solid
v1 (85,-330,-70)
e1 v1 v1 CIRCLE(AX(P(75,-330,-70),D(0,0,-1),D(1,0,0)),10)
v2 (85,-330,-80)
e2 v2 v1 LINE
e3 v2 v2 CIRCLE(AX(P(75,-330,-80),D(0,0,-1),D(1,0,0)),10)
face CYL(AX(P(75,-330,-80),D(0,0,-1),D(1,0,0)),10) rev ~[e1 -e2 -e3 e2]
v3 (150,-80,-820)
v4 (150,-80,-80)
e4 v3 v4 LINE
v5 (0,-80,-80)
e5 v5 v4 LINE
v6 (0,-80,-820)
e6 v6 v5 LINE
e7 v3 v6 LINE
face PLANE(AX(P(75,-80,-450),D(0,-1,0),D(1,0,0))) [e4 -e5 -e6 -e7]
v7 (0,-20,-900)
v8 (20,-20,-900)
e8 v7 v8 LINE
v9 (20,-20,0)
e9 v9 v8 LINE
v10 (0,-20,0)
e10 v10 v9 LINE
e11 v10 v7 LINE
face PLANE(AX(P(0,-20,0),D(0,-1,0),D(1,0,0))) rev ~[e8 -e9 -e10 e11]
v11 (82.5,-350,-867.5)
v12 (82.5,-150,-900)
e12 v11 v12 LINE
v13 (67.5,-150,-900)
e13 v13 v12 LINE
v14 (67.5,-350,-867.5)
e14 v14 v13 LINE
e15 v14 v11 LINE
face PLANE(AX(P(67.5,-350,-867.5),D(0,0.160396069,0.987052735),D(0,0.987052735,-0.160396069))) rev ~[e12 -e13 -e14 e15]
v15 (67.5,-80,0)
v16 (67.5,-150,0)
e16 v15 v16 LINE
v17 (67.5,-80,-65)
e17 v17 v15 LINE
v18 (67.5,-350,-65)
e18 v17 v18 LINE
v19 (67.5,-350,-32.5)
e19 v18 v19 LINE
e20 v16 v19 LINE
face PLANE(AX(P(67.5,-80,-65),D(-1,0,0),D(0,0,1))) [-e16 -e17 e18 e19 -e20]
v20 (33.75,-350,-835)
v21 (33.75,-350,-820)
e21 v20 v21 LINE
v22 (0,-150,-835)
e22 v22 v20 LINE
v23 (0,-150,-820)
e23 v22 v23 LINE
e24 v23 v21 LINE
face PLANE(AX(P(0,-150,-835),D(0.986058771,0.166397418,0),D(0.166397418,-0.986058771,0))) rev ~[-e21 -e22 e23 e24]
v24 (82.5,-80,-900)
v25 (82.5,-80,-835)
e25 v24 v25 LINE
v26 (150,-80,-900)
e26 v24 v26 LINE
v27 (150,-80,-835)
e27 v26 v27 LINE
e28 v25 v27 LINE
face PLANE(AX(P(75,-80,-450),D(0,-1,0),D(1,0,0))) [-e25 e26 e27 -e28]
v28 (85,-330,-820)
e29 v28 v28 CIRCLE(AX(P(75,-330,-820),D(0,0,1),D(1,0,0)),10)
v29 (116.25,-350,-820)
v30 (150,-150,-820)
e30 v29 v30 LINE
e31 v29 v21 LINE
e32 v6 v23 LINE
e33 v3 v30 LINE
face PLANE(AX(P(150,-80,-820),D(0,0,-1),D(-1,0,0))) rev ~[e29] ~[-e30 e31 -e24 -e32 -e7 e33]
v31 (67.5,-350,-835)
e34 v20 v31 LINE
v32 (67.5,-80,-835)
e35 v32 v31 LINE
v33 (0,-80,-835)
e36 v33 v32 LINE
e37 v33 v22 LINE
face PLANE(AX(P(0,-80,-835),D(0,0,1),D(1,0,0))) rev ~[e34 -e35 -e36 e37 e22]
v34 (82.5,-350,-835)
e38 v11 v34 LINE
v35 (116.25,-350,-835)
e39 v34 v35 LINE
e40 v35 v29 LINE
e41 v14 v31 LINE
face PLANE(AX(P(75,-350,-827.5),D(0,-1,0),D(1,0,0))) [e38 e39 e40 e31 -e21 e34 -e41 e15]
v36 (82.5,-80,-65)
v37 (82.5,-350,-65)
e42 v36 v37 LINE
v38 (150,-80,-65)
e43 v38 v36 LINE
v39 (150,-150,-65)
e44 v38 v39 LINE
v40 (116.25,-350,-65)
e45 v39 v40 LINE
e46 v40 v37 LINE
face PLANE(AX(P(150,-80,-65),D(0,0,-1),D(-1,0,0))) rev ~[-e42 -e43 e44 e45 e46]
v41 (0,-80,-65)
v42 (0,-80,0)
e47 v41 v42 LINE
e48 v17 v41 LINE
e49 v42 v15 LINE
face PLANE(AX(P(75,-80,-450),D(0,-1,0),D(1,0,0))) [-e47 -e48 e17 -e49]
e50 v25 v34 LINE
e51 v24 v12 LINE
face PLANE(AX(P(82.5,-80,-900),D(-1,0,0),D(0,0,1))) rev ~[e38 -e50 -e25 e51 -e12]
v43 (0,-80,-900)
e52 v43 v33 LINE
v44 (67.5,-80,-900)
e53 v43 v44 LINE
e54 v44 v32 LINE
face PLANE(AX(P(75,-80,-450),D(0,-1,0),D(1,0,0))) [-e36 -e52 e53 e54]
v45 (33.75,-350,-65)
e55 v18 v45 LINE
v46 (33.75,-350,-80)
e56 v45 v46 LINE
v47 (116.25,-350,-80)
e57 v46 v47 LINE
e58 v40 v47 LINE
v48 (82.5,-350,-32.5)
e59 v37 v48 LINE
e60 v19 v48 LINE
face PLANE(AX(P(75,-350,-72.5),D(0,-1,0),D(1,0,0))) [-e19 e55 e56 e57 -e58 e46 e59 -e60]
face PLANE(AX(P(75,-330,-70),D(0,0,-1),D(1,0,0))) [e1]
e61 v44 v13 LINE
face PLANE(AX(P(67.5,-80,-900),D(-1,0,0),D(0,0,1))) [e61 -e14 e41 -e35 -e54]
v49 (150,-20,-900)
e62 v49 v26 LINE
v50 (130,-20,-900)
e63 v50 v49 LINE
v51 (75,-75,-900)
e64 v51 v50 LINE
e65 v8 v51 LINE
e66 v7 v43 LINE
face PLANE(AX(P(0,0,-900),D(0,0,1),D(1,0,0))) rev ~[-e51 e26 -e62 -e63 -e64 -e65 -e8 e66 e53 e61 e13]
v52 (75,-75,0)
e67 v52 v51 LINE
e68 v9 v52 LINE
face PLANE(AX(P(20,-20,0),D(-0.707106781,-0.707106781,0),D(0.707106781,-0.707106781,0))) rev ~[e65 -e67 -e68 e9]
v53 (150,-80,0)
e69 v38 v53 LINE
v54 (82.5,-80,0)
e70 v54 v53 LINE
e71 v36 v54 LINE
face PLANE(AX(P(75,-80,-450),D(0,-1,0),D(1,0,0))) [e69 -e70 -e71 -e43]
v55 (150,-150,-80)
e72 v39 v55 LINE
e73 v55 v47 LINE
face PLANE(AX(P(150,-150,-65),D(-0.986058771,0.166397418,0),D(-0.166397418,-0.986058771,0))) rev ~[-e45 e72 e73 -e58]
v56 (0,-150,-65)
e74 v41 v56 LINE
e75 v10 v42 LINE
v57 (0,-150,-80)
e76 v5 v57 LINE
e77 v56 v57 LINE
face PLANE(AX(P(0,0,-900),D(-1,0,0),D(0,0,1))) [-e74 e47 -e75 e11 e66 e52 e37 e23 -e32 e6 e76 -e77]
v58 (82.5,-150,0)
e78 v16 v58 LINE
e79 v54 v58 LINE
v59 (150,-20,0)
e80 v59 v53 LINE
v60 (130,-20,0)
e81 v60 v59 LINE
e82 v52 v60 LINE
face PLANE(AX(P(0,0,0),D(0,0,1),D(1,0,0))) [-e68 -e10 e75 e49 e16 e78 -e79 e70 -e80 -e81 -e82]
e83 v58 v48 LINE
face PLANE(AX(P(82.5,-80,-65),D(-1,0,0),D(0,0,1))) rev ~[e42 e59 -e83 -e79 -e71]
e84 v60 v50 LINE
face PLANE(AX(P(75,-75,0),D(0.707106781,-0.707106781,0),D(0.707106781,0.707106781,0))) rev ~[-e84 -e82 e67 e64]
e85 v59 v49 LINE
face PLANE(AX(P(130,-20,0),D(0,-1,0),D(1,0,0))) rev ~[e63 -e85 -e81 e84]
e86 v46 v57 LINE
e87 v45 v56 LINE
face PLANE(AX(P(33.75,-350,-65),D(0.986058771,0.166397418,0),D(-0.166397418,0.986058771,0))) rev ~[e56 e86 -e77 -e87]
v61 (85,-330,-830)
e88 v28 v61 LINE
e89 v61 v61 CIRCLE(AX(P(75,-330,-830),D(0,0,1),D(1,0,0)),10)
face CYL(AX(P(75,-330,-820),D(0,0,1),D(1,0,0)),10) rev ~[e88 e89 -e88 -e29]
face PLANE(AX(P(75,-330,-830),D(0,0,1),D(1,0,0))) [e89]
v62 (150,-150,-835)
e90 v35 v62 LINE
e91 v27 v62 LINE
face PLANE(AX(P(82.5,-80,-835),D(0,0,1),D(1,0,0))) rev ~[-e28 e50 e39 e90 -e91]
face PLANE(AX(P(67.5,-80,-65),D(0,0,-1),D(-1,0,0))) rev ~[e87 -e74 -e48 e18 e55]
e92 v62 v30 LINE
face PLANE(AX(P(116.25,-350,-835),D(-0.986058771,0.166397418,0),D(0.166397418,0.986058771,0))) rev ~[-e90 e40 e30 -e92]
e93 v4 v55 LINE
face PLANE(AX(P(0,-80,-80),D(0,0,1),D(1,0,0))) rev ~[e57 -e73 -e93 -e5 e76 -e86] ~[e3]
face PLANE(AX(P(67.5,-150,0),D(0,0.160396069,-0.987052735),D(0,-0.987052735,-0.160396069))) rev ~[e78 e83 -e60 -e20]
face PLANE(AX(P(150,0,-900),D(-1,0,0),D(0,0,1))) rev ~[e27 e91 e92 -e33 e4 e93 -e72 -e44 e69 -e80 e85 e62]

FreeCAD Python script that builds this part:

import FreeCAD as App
import Part
import Sketcher

V = App.Vector
Q = App.Units.Quantity

doc = App.newDocument("Part")
body = doc.addObject("PartDesign::Body", "Body")

sketch1 = body.newObject("Sketcher::SketchObject", "Sketch")
sketch1.AttachmentSupport = (doc.getObject("XZ_Plane"), [""])
sketch1.MapMode = "FlatFace"
sketch1.addGeometry(Part.LineSegment(V(0, 0, 0), V(0, -900, 0)), False)
sketch1.addGeometry(Part.LineSegment(V(0, -900, 0), V(150, -900, 0)), False)
sketch1.addGeometry(Part.LineSegment(V(150, -900, 0), V(150, 0, 0)), False)
sketch1.addGeometry(Part.LineSegment(V(150, 0, 0), V(0, 0, 0)), False)
sketch1.addConstraint(Sketcher.Constraint("Coincident", 0, 2, 1, 1))
sketch1.addConstraint(Sketcher.Constraint("Coincident", 1, 2, 2, 1))
sketch1.addConstraint(Sketcher.Constraint("Coincident", 2, 2, 3, 1))
sketch1.addConstraint(Sketcher.Constraint("Coincident", 3, 2, 0, 1))
sketch1.addConstraint(Sketcher.Constraint("Vertical", 0))
sketch1.addConstraint(Sketcher.Constraint("Horizontal", 1))
sketch1.addConstraint(Sketcher.Constraint("Vertical", 2))
sketch1.addConstraint(Sketcher.Constraint("Horizontal", 3))
sketch1.addConstraint(Sketcher.Constraint("Coincident", 3, 2, -1, 1))
sketch1.addConstraint(Sketcher.Constraint("DistanceX", 1, 1, 1, 2, Q("150 mm")))
sketch1.addConstraint(Sketcher.Constraint("DistanceY", 0, 2, 0, 1, Q("900 mm")))
pad1 = body.newObject("PartDesign::Pad", "Pad")
pad1.Profile = sketch1
pad1.Length = 80

sketch2 = body.newObject("Sketcher::SketchObject", "Sketch001")
sketch2.AttachmentSupport = (doc.getObject("XZ_Plane"), [""])
sketch2.MapMode = "FlatFace"
sketch2.AttachmentOffset = App.Placement(V(0, 0, 80), App.Rotation())
sketch2.addGeometry(Part.LineSegment(V(0, -65, 0), V(0, -80, 0)), False)
sketch2.addGeometry(Part.LineSegment(V(0, -80, 0), V(150, -80, 0)), False)
sketch2.addGeometry(Part.LineSegment(V(150, -80, 0), V(150, -65, 0)), False)
sketch2.addGeometry(Part.LineSegment(V(150, -65, 0), V(82, -65, 0)), False)
sketch2.addGeometry(Part.LineSegment(V(82, -65, 0), V(82, 0, 0)), False)
sketch2.addGeometry(Part.LineSegment(V(82, 0, 0), V(68, 0, 0)), False)
sketch2.addGeometry(Part.LineSegment(V(68, 0, 0), V(68, -65, 0)), False)
sketch2.addGeometry(Part.LineSegment(V(68, -65, 0), V(0, -65, 0)), False)
sketch2.addGeometry(Part.LineSegment(V(150, -820, 0), V(0, -820, 0)), False)
sketch2.addGeometry(Part.LineSegment(V(0, -820, 0), V(0, -835, 0)), False)
sketch2.addGeometry(Part.LineSegment(V(0, -835, 0), V(68, -835, 0)), False)
sketch2.addGeometry(Part.LineSegment(V(68, -835, 0), V(68, -900, 0)), False)
sketch2.addGeometry(Part.LineSegment(V(68, -900, 0), V(82, -900, 0)), False)
sketch2.addGeometry(Part.LineSegment(V(82, -900, 0), V(82, -835, 0)), False)
sketch2.addGeometry(Part.LineSegment(V(82, -835, 0), V(150, -835, 0)), False)
sketch2.addGeometry(Part.LineSegment(V(150, -835, 0), V(150, -820, 0)), False)
sketch2.addConstraint(Sketcher.Constraint("Coincident", 0, 2, 1, 1))
sketch2.addConstraint(Sketcher.Constraint("Coincident", 1, 2, 2, 1))
sketch2.addConstraint(Sketcher.Constraint("Coincident", 2, 2, 3, 1))
sketch2.addConstraint(Sketcher.Constraint("Coincident", 3, 2, 4, 1))
sketch2.addConstraint(Sketcher.Constraint("Coincident", 4, 2, 5, 1))
sketch2.addConstraint(Sketcher.Constraint("Coincident", 5, 2, 6, 1))
sketch2.addConstraint(Sketcher.Constraint("Coincident", 6, 2, 7, 1))
sketch2.addConstraint(Sketcher.Constraint("Coincident", 7, 2, 0, 1))
sketch2.addConstraint(Sketcher.Constraint("Coincident", 8, 2, 9, 1))
sketch2.addConstraint(Sketcher.Constraint("Coincident", 9, 2, 10, 1))
sketch2.addConstraint(Sketcher.Constraint("Coincident", 10, 2, 11, 1))
sketch2.addConstraint(Sketcher.Constraint("Coincident", 11, 2, 12, 1))
sketch2.addConstraint(Sketcher.Constraint("Coincident", 12, 2, 13, 1))
sketch2.addConstraint(Sketcher.Constraint("Coincident", 13, 2, 14, 1))
sketch2.addConstraint(Sketcher.Constraint("Coincident", 14, 2, 15, 1))
sketch2.addConstraint(Sketcher.Constraint("Coincident", 15, 2, 8, 1))
sketch2.addConstraint(Sketcher.Constraint("Vertical", 0))
sketch2.addConstraint(Sketcher.Constraint("Horizontal", 1))
sketch2.addConstraint(Sketcher.Constraint("Vertical", 2))
sketch2.addConstraint(Sketcher.Constraint("Horizontal", 3))
sketch2.addConstraint(Sketcher.Constraint("Vertical", 4))
sketch2.addConstraint(Sketcher.Constraint("Horizontal", 5))
sketch2.addConstraint(Sketcher.Constraint("Vertical", 6))
sketch2.addConstraint(Sketcher.Constraint("Horizontal", 7))
sketch2.addConstraint(Sketcher.Constraint("Horizontal", 8))
sketch2.addConstraint(Sketcher.Constraint("Vertical", 9))
sketch2.addConstraint(Sketcher.Constraint("Horizontal", 10))
sketch2.addConstraint(Sketcher.Constraint("Vertical", 11))
sketch2.addConstraint(Sketcher.Constraint("Horizontal", 12))
sketch2.addConstraint(Sketcher.Constraint("Vertical", 13))
sketch2.addConstraint(Sketcher.Constraint("Horizontal", 14))
sketch2.addConstraint(Sketcher.Constraint("Vertical", 15))
sketch2.addConstraint(Sketcher.Constraint("PointOnObject", 0, 2, -2))
sketch2.addConstraint(Sketcher.Constraint("PointOnObject", 4, 2, -1))
sketch2.addConstraint(Sketcher.Constraint("PointOnObject", 8, 2, -2))
sketch2.addConstraint(Sketcher.Constraint("Horizontal", 3, 2, 6, 2))
sketch2.addConstraint(Sketcher.Constraint("Horizontal", 10, 2, 13, 2))
sketch2.addConstraint(Sketcher.Constraint("Vertical", 6, 2, 10, 2))
sketch2.addConstraint(Sketcher.Constraint("Vertical", 4, 2, 12, 2))
sketch2.addConstraint(Sketcher.Constraint("Vertical", 2, 2, 14, 2))
sketch2.addConstraint(Sketcher.Constraint("Equal", 3, 7))
sketch2.addConstraint(Sketcher.Constraint("Equal", 12, 0))
sketch2.addConstraint(Sketcher.Constraint("Equal", 2, 9))
sketch2.addConstraint(Sketcher.Constraint("Equal", 6, 11))
sketch2.addConstraint(Sketcher.Constraint("DistanceX", 1, 1, 1, 2, Q("150 mm")))
sketch2.addConstraint(Sketcher.Constraint("DistanceX", 5, 2, 5, 1, Q("15 mm")))
sketch2.addConstraint(Sketcher.Constraint("DistanceY", 4, 1, 4, 2, Q("65 mm")))
sketch2.addConstraint(Sketcher.Constraint("DistanceY", 8, 2, -1, 1, Q("820 mm")))
pad2 = body.newObject("PartDesign::Pad", "Pad001")
pad2.Profile = sketch2
pad2.Length = 270

sketch3 = body.newObject("Sketcher::SketchObject", "Sketch002")
sketch3.AttachmentSupport = (doc.getObject("YZ_Plane"), [""])
sketch3.MapMode = "FlatFace"
sketch3.AttachmentOffset = App.Placement(V(0, 0, 67.5), App.Rotation())
sketch3.addGeometry(Part.LineSegment(V(-350, 0, 0), V(-150, 0, 0)), False)
sketch3.addGeometry(Part.LineSegment(V(-150, 0, 0), V(-350, -32, 0)), False)
sketch3.addGeometry(Part.LineSegment(V(-350, -32, 0), V(-350, 0, 0)), False)
sketch3.addConstraint(Sketcher.Constraint("Coincident", 0, 2, 1, 1))
sketch3.addConstraint(Sketcher.Constraint("Coincident", 1, 2, 2, 1))
sketch3.addConstraint(Sketcher.Constraint("Coincident", 2, 2, 0, 1))
sketch3.addConstraint(Sketcher.Constraint("Horizontal", 0))
sketch3.addConstraint(Sketcher.Constraint("Vertical", 2))
sketch3.addConstraint(Sketcher.Constraint("PointOnObject", 0, 2, -1))
sketch3.addConstraint(Sketcher.Constraint("DistanceX", 0, 1, 0, 2, Q("200 mm")))
sketch3.addConstraint(Sketcher.Constraint("DistanceY", 2, 1, 2, 2, Q("32.5 mm")))
sketch3.addConstraint(Sketcher.Constraint("DistanceX", 0, 2, -1, 1, Q("150 mm")))
pocket1 = body.newObject("PartDesign::Pocket", "Pocket")
pocket1.Profile = sketch3
pocket1.Length = 25
pocket1.Reversed = True

sketch4 = body.newObject("Sketcher::SketchObject", "Sketch003")
sketch4.AttachmentSupport = (doc.getObject("XY_Plane"), [""])
sketch4.MapMode = "FlatFace"
sketch4.AttachmentOffset = App.Placement(V(0, 0, -65), App.Rotation())
sketch4.addGeometry(Part.LineSegment(V(150, -150, 0), V(116, -350, 0)), False)
sketch4.addGeometry(Part.LineSegment(V(116, -350, 0), V(150, -350, 0)), False)
sketch4.addGeometry(Part.LineSegment(V(150, -350, 0), V(150, -150, 0)), False)
sketch4.addConstraint(Sketcher.Constraint("Coincident", 0, 2, 1, 1))
sketch4.addConstraint(Sketcher.Constraint("Coincident", 1, 2, 2, 1))
sketch4.addConstraint(Sketcher.Constraint("Coincident", 2, 2, 0, 1))
sketch4.addConstraint(Sketcher.Constraint("Horizontal", 1))
sketch4.addConstraint(Sketcher.Constraint("Vertical", 2))
sketch4.addConstraint(Sketcher.Constraint("DistanceY", 2, 1, 2, 2, Q("200 mm")))
sketch4.addConstraint(Sketcher.Constraint("DistanceY", 0, 2, -1, 1, Q("350 mm")))
sketch4.addConstraint(Sketcher.Constraint("DistanceX", -1, 1, 1, 2, Q("150 mm")))
sketch4.addConstraint(Sketcher.Constraint("DistanceX", 1, 1, 1, 2, Q("33.75 mm")))
pocket2 = body.newObject("PartDesign::Pocket", "Pocket001")
pocket2.Profile = sketch4
pocket2.Length = 25

sketch5 = body.newObject("Sketcher::SketchObject", "Sketch004")
sketch5.AttachmentSupport = (doc.getObject("XY_Plane"), [""])
sketch5.MapMode = "FlatFace"
sketch5.AttachmentOffset = App.Placement(V(0, 0, -65), App.Rotation())
sketch5.addGeometry(Part.LineSegment(V(0, -350, 0), V(34, -350, 0)), False)
sketch5.addGeometry(Part.LineSegment(V(34, -350, 0), V(0, -150, 0)), False)
sketch5.addGeometry(Part.LineSegment(V(0, -150, 0), V(0, -350, 0)), False)
sketch5.addConstraint(Sketcher.Constraint("Coincident", 0, 2, 1, 1))
sketch5.addConstraint(Sketcher.Constraint("Coincident", 1, 2, 2, 1))
sketch5.addConstraint(Sketcher.Constraint("Coincident", 2, 2, 0, 1))
sketch5.addConstraint(Sketcher.Constraint("Horizontal", 0))
sketch5.addConstraint(Sketcher.Constraint("Vertical", 2))
sketch5.addConstraint(Sketcher.Constraint("PointOnObject", 1, 2, -2))
sketch5.addConstraint(Sketcher.Constraint("DistanceY", 2, 2, 2, 1, Q("200 mm")))
sketch5.addConstraint(Sketcher.Constraint("DistanceY", 0, 2, -1, 1, Q("350 mm")))
sketch5.addConstraint(Sketcher.Constraint("DistanceX", 0, 1, 0, 2, Q("33.75 mm")))
pocket3 = body.newObject("PartDesign::Pocket", "Pocket002")
pocket3.Profile = sketch5
pocket3.Length = 25

sketch6 = body.newObject("Sketcher::SketchObject", "Sketch005")
sketch6.AttachmentSupport = (doc.getObject("XY_Plane"), [""])
sketch6.MapMode = "FlatFace"
sketch6.AttachmentOffset = App.Placement(V(0, 0, -835), App.Rotation())
sketch6.addGeometry(Part.LineSegment(V(150, -350, 0), V(116, -350, 0)), False)
sketch6.addGeometry(Part.LineSegment(V(116, -350, 0), V(150, -150, 0)), False)
sketch6.addGeometry(Part.LineSegment(V(150, -150, 0), V(150, -350, 0)), False)
sketch6.addConstraint(Sketcher.Constraint("Coincident", 0, 2, 1, 1))
sketch6.addConstraint(Sketcher.Constraint("Coincident", 1, 2, 2, 1))
sketch6.addConstraint(Sketcher.Constraint("Coincident", 2, 2, 0, 1))
sketch6.addConstraint(Sketcher.Constraint("Horizontal", 0))
sketch6.addConstraint(Sketcher.Constraint("Vertical", 2))
sketch6.addConstraint(Sketcher.Constraint("DistanceY", 2, 2, 2, 1, Q("200 mm")))
sketch6.addConstraint(Sketcher.Constraint("DistanceY", 0, 2, -1, 1, Q("350 mm")))
sketch6.addConstraint(Sketcher.Constraint("DistanceX", -1, 1, 1, 2, Q("150 mm")))
sketch6.addConstraint(Sketcher.Constraint("DistanceX", 0, 2, 0, 1, Q("33.75 mm")))
pocket4 = body.newObject("PartDesign::Pocket", "Pocket003")
pocket4.Profile = sketch6
pocket4.Length = 25
pocket4.Reversed = True

sketch7 = body.newObject("Sketcher::SketchObject", "Sketch006")
sketch7.AttachmentSupport = (doc.getObject("XY_Plane"), [""])
sketch7.MapMode = "FlatFace"
sketch7.AttachmentOffset = App.Placement(V(0, 0, -835), App.Rotation())
sketch7.addGeometry(Part.LineSegment(V(0, -150, 0), V(34, -350, 0)), False)
sketch7.addGeometry(Part.LineSegment(V(34, -350, 0), V(0, -350, 0)), False)
sketch7.addGeometry(Part.LineSegment(V(0, -350, 0), V(0, -150, 0)), False)
sketch7.addConstraint(Sketcher.Constraint("Coincident", 0, 2, 1, 1))
sketch7.addConstraint(Sketcher.Constraint("Coincident", 1, 2, 2, 1))
sketch7.addConstraint(Sketcher.Constraint("Coincident", 2, 2, 0, 1))
sketch7.addConstraint(Sketcher.Constraint("Horizontal", 1))
sketch7.addConstraint(Sketcher.Constraint("Vertical", 2))
sketch7.addConstraint(Sketcher.Constraint("PointOnObject", 1, 2, -2))
sketch7.addConstraint(Sketcher.Constraint("DistanceY", 2, 1, 2, 2, Q("200 mm")))
sketch7.addConstraint(Sketcher.Constraint("DistanceY", 0, 2, -1, 1, Q("350 mm")))
sketch7.addConstraint(Sketcher.Constraint("DistanceX", 1, 2, 1, 1, Q("33.75 mm")))
pocket5 = body.newObject("PartDesign::Pocket", "Pocket004")
pocket5.Profile = sketch7
pocket5.Length = 25
pocket5.Reversed = True

sketch8 = body.newObject("Sketcher::SketchObject", "Sketch007")
sketch8.AttachmentSupport = (doc.getObject("YZ_Plane"), [""])
sketch8.MapMode = "FlatFace"
sketch8.AttachmentOffset = App.Placement(V(0, 0, 67.5), App.Rotation())
sketch8.addGeometry(Part.LineSegment(V(-350, -900, 0), V(-350, -868, 0)), False)
sketch8.addGeometry(Part.LineSegment(V(-350, -868, 0), V(-150, -900, 0)), False)
sketch8.addGeometry(Part.LineSegment(V(-150, -900, 0), V(-350, -900, 0)), False)
sketch8.addConstraint(Sketcher.Constraint("Coincident", 0, 2, 1, 1))
sketch8.addConstraint(Sketcher.Constraint("Coincident", 1, 2, 2, 1))
sketch8.addConstraint(Sketcher.Constraint("Coincident", 2, 2, 0, 1))
sketch8.addConstraint(Sketcher.Constraint("Vertical", 0))
sketch8.addConstraint(Sketcher.Constraint("Horizontal", 2))
sketch8.addConstraint(Sketcher.Constraint("DistanceX", 2, 2, 2, 1, Q("200 mm")))
sketch8.addConstraint(Sketcher.Constraint("DistanceY", 0, 1, 0, 2, Q("32.5 mm")))
sketch8.addConstraint(Sketcher.Constraint("DistanceX", 0, 2, -1, 1, Q("350 mm")))
sketch8.addConstraint(Sketcher.Constraint("DistanceY", 1, 2, -1, 1, Q("900 mm")))
pocket6 = body.newObject("PartDesign::Pocket", "Pocket005")
pocket6.Profile = sketch8
pocket6.Length = 25
pocket6.Reversed = True

sketch9 = body.newObject("Sketcher::SketchObject", "Sketch008")
sketch9.AttachmentSupport = (doc.getObject("XY_Plane"), [""])
sketch9.MapMode = "FlatFace"
sketch9.AttachmentOffset = App.Placement(V(0, 0, -80), App.Rotation())
sketch9.addGeometry(Part.Circle(V(75, -330, 0), V(0, 0, 1), 10), False)
sketch9.addConstraint(Sketcher.Constraint("Diameter", 0, Q("20 mm")))
sketch9.addConstraint(Sketcher.Constraint("DistanceX", -1, 1, 0, 3, Q("75 mm")))
sketch9.addConstraint(Sketcher.Constraint("DistanceY", 0, 3, -1, 1, Q("330 mm")))
pocket7 = body.newObject("PartDesign::Pocket", "Pocket006")
pocket7.Profile = sketch9
pocket7.Length = 10
pocket7.Reversed = True

sketch10 = body.newObject("Sketcher::SketchObject", "Sketch009")
sketch10.AttachmentSupport = (doc.getObject("XY_Plane"), [""])
sketch10.MapMode = "FlatFace"
sketch10.AttachmentOffset = App.Placement(V(0, 0, -820), App.Rotation())
sketch10.addGeometry(Part.Circle(V(75, -330, 0), V(0, 0, 1), 10), False)
sketch10.addConstraint(Sketcher.Constraint("Diameter", 0, Q("20 mm")))
sketch10.addConstraint(Sketcher.Constraint("DistanceX", -1, 1, 0, 3, Q("75 mm")))
sketch10.addConstraint(Sketcher.Constraint("DistanceY", 0, 3, -1, 1, Q("330 mm")))
pocket8 = body.newObject("PartDesign::Pocket", "Pocket007")
pocket8.Profile = sketch10
pocket8.Length = 10

sketch11 = body.newObject("Sketcher::SketchObject", "Sketch010")
sketch11.AttachmentSupport = (doc.getObject("XY_Plane"), [""])
sketch11.MapMode = "FlatFace"
sketch11.addGeometry(Part.LineSegment(V(20, -20, 0), V(75, -75, 0)), False)
sketch11.addGeometry(Part.LineSegment(V(75, -75, 0), V(130, -20, 0)), False)
sketch11.addGeometry(Part.LineSegment(V(130, -20, 0), V(150, -20, 0)), False)
sketch11.addGeometry(Part.LineSegment(V(150, -20, 0), V(150, 0, 0)), False)
sketch11.addGeometry(Part.LineSegment(V(150, 0, 0), V(0, 0, 0)), False)
sketch11.addGeometry(Part.LineSegment(V(0, 0, 0), V(0, -20, 0)), False)
sketch11.addGeometry(Part.LineSegment(V(0, -20, 0), V(20, -20, 0)), False)
sketch11.addConstraint(Sketcher.Constraint("Coincident", 0, 2, 1, 1))
sketch11.addConstraint(Sketcher.Constraint("Coincident", 1, 2, 2, 1))
sketch11.addConstraint(Sketcher.Constraint("Coincident", 2, 2, 3, 1))
sketch11.addConstraint(Sketcher.Constraint("Coincident", 3, 2, 4, 1))
sketch11.addConstraint(Sketcher.Constraint("Coincident", 4, 2, 5, 1))
sketch11.addConstraint(Sketcher.Constraint("Coincident", 5, 2, 6, 1))
sketch11.addConstraint(Sketcher.Constraint("Coincident", 6, 2, 0, 1))
sketch11.addConstraint(Sketcher.Constraint("Horizontal", 2))
sketch11.addConstraint(Sketcher.Constraint("Vertical", 3))
sketch11.addConstraint(Sketcher.Constraint("Horizontal", 4))
sketch11.addConstraint(Sketcher.Constraint("Vertical", 5))
sketch11.addConstraint(Sketcher.Constraint("Horizontal", 6))
sketch11.addConstraint(Sketcher.Constraint("Coincident", 4, 2, -1, 1))
sketch11.addConstraint(Sketcher.Constraint("Perpendicular", 0, 1))
sketch11.addConstraint(Sketcher.Constraint("Horizontal", 2, 2, 5, 2))
sketch11.addConstraint(Sketcher.Constraint("Equal", 2, 6))
sketch11.addConstraint(Sketcher.Constraint("Equal", 6, 3))
sketch11.addConstraint(Sketcher.Constraint("Equal", 0, 1))
sketch11.addConstraint(Sketcher.Constraint("DistanceX", 2, 1, 2, 2, Q("20 mm")))
sketch11.addConstraint(Sketcher.Constraint("DistanceX", 4, 2, 4, 1, Q("150 mm")))
pocket9 = body.newObject("PartDesign::Pocket", "Pocket008")
pocket9.Profile = sketch11
pocket9.Type = "ThroughAll"

doc.recompute()
